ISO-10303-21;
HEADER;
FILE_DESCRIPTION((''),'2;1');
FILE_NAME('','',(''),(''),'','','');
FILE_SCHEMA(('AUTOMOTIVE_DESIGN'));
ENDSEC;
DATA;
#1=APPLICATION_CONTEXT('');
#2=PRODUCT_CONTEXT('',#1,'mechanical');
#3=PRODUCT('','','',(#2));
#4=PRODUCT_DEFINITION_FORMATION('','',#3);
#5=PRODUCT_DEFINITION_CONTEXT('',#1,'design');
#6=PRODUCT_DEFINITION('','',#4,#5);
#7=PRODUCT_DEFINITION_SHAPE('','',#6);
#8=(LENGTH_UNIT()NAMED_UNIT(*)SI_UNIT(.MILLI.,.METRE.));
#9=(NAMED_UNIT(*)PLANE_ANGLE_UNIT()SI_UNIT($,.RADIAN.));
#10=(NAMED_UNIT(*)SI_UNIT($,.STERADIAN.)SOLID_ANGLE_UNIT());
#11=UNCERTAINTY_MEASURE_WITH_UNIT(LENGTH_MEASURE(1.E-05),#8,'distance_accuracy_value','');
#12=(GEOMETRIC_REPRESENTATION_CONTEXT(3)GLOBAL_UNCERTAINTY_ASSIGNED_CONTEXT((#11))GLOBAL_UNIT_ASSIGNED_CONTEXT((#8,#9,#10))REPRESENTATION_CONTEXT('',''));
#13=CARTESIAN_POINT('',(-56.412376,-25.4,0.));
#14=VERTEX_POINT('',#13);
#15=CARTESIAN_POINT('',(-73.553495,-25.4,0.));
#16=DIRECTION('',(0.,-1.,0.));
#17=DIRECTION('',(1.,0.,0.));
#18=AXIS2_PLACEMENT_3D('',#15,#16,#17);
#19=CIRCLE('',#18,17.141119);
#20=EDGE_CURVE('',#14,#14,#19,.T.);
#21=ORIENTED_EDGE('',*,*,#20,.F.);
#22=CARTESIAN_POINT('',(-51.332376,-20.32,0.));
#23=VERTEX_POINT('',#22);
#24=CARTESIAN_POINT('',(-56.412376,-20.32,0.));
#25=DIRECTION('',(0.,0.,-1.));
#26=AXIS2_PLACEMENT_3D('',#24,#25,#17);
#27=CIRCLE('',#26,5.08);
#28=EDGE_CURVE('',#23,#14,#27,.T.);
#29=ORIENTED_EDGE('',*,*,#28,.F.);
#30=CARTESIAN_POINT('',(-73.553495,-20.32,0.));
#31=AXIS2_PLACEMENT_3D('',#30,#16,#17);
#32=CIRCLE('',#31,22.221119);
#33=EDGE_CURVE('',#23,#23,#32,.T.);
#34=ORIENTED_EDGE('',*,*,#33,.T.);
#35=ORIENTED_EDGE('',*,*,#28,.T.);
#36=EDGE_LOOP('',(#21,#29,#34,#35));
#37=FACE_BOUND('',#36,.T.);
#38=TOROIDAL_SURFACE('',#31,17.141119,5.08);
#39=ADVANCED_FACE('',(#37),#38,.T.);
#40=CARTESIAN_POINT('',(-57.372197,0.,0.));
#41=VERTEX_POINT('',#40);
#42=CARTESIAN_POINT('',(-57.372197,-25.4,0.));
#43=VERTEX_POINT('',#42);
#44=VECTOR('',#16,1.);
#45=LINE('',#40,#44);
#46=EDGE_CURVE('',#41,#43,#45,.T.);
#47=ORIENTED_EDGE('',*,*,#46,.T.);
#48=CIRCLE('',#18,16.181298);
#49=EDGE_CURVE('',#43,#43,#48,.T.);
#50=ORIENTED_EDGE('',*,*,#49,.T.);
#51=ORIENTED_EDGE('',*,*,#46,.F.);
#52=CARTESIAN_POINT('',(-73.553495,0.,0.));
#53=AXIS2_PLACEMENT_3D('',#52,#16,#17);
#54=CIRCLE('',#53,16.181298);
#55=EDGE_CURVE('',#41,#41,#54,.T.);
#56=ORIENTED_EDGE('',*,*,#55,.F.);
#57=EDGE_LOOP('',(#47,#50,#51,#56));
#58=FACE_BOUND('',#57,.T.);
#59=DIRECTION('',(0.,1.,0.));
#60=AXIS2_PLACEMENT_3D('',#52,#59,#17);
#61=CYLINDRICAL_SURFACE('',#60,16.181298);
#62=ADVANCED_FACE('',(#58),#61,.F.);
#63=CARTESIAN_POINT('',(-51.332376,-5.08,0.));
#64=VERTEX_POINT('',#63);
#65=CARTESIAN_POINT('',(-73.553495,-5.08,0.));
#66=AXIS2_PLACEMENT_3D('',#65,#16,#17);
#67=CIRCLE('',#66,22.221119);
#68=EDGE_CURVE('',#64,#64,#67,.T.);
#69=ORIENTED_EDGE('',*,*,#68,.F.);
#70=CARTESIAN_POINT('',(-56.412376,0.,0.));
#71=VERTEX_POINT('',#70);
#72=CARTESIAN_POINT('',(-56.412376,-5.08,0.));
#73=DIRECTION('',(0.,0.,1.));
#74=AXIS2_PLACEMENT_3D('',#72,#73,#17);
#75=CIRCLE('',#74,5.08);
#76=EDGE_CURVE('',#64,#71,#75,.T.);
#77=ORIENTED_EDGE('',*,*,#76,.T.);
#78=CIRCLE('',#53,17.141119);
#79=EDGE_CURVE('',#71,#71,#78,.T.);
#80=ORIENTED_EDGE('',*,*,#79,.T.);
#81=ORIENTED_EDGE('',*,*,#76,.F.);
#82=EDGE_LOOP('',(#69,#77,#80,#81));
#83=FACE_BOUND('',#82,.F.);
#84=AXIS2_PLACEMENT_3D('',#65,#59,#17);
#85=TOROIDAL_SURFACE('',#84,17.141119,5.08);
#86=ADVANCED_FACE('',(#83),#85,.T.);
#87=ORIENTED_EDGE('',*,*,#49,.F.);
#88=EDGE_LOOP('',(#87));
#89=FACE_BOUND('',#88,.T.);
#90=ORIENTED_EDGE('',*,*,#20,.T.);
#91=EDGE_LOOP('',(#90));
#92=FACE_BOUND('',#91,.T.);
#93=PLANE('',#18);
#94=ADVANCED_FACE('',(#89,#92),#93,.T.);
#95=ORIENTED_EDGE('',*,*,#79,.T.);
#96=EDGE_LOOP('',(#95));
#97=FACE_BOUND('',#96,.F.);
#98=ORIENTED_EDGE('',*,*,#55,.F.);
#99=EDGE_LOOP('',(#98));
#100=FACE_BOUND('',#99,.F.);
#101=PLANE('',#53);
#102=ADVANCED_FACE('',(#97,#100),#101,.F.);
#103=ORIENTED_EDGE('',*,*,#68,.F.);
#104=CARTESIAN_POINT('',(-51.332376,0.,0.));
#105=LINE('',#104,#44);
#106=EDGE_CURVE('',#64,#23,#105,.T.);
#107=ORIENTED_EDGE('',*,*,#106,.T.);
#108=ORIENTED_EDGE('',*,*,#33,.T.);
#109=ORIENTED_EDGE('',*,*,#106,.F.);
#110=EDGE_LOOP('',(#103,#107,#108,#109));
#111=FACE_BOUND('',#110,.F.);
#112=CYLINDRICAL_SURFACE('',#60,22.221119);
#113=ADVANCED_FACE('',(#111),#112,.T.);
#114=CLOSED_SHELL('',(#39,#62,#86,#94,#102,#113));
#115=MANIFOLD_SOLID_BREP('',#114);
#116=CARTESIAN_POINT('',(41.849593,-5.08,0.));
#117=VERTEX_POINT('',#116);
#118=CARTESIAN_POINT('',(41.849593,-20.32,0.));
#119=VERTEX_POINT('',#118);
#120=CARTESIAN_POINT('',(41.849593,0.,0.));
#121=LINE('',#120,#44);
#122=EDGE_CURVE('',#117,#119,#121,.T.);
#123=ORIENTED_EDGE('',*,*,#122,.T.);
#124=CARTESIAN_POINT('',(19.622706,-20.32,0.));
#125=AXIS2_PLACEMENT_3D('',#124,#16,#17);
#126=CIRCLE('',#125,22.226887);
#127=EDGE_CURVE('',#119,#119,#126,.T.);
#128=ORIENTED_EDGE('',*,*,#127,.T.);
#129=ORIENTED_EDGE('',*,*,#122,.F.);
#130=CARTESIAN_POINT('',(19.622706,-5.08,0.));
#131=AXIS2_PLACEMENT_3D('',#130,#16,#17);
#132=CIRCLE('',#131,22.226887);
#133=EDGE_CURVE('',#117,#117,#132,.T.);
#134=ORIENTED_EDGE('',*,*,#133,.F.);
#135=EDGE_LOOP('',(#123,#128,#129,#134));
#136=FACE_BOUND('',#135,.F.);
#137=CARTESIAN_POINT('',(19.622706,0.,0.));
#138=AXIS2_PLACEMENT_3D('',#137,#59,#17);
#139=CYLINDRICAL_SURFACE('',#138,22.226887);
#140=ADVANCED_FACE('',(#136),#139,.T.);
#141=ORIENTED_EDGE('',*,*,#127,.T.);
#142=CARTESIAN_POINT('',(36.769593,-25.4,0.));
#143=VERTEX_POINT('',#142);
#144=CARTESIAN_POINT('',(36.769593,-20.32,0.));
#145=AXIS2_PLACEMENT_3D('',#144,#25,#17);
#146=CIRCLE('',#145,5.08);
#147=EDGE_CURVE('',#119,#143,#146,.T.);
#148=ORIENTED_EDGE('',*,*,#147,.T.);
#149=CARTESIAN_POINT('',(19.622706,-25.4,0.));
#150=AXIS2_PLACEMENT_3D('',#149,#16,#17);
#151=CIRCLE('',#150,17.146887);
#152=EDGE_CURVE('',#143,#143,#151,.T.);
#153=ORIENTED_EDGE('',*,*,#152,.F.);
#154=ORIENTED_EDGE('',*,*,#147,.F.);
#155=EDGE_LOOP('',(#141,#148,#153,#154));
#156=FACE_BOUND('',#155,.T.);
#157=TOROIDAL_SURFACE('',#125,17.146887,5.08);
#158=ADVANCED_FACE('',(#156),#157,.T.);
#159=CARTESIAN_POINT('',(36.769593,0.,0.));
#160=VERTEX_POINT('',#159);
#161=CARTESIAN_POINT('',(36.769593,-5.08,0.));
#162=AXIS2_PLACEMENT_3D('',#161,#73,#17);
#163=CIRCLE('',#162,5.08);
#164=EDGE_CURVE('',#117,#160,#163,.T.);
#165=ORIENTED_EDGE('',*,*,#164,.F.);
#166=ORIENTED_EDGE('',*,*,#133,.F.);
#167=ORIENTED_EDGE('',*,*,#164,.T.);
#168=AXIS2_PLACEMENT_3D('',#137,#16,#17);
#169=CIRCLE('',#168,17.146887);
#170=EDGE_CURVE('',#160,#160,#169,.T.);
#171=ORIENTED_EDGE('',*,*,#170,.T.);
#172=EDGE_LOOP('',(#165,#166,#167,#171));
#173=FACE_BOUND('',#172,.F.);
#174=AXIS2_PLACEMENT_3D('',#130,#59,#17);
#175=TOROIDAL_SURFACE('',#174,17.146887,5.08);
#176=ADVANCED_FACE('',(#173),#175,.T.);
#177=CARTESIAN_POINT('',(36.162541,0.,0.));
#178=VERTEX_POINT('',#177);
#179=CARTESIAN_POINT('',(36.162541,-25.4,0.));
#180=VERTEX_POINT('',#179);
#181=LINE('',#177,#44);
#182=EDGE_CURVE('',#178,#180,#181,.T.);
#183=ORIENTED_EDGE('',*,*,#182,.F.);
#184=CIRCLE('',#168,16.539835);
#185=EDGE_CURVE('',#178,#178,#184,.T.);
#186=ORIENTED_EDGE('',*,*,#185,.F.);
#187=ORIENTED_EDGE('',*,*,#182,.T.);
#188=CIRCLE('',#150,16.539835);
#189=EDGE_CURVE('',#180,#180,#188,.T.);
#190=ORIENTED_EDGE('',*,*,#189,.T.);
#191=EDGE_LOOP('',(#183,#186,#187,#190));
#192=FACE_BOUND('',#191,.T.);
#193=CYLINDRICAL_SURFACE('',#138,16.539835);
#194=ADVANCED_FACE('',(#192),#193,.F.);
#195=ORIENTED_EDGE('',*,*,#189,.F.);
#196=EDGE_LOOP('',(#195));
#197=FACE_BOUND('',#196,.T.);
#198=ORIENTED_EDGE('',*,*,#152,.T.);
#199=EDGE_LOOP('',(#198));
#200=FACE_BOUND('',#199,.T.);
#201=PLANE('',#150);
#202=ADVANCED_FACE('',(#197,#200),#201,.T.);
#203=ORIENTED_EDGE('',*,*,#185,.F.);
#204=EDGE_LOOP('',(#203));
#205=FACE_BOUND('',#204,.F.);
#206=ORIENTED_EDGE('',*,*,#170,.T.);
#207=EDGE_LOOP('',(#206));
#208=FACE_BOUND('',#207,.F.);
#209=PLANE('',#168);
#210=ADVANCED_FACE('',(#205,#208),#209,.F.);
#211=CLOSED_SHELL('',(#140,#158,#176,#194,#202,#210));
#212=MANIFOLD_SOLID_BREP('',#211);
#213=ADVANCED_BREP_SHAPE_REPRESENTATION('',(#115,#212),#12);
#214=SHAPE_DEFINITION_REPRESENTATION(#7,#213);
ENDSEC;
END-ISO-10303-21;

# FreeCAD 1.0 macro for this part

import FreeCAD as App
import Part
import Sketcher

V = App.Vector
Q = App.Units.Quantity


def edges_at(feature, points):
    """Names of the edges that pass closest to the given points."""
    edges = feature.Shape.Edges
    near = lambda p: min(range(len(edges)), key=lambda i: edges[i].distToShape(Part.Vertex(*p))[0])
    return sorted({f"Edge{near(p) + 1}" for p in points})

doc = App.newDocument("Part")
body = doc.addObject("PartDesign::Body", "Body")
body.AllowCompound = True

# Sketch on XZ plane
sketch1 = doc.addObject("Sketcher::SketchObject", "Sketch")
body.addObject(sketch1)
sketch1.AttachmentSupport = (doc.XZ_Plane, [""])
sketch1.MapMode = "FlatFace"
sketch1.addGeometry([
    Part.Circle(V(-74, 0, 0), V(0, 0, 1), 22),
    Part.Circle(V(-74, 0, 0), V(0, 0, 1), 16),
    Part.Circle(V(20, 0, 0), V(0, 0, 1), 22),
    Part.Circle(V(20, 0, 0), V(0, 0, 1), 17),
], False)
sketch1.addConstraint([
    Sketcher.Constraint("Coincident", 1, 3, 0, 3),
    Sketcher.Constraint("Coincident", 3, 3, 2, 3),
    Sketcher.Constraint("PointOnObject", 0, 3, -1),
    Sketcher.Constraint("PointOnObject", 2, 3, -1),
    Sketcher.Constraint("Diameter", 0, Q("44.442238 mm")),
    Sketcher.Constraint("Diameter", 3, Q("33.07967 mm")),
    Sketcher.Constraint("Diameter", 1, Q("32.362596 mm")),
    Sketcher.Constraint("Diameter", 2, Q("44.453774 mm")),
    Sketcher.Constraint("DistanceX", 0, 3, 2, 3, Q("93.176201 mm")),
    Sketcher.Constraint("DistanceX", 0, 3, -1, 1, Q("73.553495 mm")),
])
pad1 = doc.addObject("PartDesign::Pad", "Pad")
body.addObject(pad1)
pad1.Profile = sketch1
pad1.Length = Q("1 in")
doc.recompute()

fillet = doc.addObject("PartDesign::Fillet", "Fillet")
body.addObject(fillet)
fillet.Base = (pad1, edges_at(pad1, [
    (-95.775, -25.4, 0),
    (-95.775, 0, 0),
    (-2.604, 0, 0),
    (-2.604, -25.4, 0),
]))
fillet.Radius = Q("0.2 in")

doc.recompute()
